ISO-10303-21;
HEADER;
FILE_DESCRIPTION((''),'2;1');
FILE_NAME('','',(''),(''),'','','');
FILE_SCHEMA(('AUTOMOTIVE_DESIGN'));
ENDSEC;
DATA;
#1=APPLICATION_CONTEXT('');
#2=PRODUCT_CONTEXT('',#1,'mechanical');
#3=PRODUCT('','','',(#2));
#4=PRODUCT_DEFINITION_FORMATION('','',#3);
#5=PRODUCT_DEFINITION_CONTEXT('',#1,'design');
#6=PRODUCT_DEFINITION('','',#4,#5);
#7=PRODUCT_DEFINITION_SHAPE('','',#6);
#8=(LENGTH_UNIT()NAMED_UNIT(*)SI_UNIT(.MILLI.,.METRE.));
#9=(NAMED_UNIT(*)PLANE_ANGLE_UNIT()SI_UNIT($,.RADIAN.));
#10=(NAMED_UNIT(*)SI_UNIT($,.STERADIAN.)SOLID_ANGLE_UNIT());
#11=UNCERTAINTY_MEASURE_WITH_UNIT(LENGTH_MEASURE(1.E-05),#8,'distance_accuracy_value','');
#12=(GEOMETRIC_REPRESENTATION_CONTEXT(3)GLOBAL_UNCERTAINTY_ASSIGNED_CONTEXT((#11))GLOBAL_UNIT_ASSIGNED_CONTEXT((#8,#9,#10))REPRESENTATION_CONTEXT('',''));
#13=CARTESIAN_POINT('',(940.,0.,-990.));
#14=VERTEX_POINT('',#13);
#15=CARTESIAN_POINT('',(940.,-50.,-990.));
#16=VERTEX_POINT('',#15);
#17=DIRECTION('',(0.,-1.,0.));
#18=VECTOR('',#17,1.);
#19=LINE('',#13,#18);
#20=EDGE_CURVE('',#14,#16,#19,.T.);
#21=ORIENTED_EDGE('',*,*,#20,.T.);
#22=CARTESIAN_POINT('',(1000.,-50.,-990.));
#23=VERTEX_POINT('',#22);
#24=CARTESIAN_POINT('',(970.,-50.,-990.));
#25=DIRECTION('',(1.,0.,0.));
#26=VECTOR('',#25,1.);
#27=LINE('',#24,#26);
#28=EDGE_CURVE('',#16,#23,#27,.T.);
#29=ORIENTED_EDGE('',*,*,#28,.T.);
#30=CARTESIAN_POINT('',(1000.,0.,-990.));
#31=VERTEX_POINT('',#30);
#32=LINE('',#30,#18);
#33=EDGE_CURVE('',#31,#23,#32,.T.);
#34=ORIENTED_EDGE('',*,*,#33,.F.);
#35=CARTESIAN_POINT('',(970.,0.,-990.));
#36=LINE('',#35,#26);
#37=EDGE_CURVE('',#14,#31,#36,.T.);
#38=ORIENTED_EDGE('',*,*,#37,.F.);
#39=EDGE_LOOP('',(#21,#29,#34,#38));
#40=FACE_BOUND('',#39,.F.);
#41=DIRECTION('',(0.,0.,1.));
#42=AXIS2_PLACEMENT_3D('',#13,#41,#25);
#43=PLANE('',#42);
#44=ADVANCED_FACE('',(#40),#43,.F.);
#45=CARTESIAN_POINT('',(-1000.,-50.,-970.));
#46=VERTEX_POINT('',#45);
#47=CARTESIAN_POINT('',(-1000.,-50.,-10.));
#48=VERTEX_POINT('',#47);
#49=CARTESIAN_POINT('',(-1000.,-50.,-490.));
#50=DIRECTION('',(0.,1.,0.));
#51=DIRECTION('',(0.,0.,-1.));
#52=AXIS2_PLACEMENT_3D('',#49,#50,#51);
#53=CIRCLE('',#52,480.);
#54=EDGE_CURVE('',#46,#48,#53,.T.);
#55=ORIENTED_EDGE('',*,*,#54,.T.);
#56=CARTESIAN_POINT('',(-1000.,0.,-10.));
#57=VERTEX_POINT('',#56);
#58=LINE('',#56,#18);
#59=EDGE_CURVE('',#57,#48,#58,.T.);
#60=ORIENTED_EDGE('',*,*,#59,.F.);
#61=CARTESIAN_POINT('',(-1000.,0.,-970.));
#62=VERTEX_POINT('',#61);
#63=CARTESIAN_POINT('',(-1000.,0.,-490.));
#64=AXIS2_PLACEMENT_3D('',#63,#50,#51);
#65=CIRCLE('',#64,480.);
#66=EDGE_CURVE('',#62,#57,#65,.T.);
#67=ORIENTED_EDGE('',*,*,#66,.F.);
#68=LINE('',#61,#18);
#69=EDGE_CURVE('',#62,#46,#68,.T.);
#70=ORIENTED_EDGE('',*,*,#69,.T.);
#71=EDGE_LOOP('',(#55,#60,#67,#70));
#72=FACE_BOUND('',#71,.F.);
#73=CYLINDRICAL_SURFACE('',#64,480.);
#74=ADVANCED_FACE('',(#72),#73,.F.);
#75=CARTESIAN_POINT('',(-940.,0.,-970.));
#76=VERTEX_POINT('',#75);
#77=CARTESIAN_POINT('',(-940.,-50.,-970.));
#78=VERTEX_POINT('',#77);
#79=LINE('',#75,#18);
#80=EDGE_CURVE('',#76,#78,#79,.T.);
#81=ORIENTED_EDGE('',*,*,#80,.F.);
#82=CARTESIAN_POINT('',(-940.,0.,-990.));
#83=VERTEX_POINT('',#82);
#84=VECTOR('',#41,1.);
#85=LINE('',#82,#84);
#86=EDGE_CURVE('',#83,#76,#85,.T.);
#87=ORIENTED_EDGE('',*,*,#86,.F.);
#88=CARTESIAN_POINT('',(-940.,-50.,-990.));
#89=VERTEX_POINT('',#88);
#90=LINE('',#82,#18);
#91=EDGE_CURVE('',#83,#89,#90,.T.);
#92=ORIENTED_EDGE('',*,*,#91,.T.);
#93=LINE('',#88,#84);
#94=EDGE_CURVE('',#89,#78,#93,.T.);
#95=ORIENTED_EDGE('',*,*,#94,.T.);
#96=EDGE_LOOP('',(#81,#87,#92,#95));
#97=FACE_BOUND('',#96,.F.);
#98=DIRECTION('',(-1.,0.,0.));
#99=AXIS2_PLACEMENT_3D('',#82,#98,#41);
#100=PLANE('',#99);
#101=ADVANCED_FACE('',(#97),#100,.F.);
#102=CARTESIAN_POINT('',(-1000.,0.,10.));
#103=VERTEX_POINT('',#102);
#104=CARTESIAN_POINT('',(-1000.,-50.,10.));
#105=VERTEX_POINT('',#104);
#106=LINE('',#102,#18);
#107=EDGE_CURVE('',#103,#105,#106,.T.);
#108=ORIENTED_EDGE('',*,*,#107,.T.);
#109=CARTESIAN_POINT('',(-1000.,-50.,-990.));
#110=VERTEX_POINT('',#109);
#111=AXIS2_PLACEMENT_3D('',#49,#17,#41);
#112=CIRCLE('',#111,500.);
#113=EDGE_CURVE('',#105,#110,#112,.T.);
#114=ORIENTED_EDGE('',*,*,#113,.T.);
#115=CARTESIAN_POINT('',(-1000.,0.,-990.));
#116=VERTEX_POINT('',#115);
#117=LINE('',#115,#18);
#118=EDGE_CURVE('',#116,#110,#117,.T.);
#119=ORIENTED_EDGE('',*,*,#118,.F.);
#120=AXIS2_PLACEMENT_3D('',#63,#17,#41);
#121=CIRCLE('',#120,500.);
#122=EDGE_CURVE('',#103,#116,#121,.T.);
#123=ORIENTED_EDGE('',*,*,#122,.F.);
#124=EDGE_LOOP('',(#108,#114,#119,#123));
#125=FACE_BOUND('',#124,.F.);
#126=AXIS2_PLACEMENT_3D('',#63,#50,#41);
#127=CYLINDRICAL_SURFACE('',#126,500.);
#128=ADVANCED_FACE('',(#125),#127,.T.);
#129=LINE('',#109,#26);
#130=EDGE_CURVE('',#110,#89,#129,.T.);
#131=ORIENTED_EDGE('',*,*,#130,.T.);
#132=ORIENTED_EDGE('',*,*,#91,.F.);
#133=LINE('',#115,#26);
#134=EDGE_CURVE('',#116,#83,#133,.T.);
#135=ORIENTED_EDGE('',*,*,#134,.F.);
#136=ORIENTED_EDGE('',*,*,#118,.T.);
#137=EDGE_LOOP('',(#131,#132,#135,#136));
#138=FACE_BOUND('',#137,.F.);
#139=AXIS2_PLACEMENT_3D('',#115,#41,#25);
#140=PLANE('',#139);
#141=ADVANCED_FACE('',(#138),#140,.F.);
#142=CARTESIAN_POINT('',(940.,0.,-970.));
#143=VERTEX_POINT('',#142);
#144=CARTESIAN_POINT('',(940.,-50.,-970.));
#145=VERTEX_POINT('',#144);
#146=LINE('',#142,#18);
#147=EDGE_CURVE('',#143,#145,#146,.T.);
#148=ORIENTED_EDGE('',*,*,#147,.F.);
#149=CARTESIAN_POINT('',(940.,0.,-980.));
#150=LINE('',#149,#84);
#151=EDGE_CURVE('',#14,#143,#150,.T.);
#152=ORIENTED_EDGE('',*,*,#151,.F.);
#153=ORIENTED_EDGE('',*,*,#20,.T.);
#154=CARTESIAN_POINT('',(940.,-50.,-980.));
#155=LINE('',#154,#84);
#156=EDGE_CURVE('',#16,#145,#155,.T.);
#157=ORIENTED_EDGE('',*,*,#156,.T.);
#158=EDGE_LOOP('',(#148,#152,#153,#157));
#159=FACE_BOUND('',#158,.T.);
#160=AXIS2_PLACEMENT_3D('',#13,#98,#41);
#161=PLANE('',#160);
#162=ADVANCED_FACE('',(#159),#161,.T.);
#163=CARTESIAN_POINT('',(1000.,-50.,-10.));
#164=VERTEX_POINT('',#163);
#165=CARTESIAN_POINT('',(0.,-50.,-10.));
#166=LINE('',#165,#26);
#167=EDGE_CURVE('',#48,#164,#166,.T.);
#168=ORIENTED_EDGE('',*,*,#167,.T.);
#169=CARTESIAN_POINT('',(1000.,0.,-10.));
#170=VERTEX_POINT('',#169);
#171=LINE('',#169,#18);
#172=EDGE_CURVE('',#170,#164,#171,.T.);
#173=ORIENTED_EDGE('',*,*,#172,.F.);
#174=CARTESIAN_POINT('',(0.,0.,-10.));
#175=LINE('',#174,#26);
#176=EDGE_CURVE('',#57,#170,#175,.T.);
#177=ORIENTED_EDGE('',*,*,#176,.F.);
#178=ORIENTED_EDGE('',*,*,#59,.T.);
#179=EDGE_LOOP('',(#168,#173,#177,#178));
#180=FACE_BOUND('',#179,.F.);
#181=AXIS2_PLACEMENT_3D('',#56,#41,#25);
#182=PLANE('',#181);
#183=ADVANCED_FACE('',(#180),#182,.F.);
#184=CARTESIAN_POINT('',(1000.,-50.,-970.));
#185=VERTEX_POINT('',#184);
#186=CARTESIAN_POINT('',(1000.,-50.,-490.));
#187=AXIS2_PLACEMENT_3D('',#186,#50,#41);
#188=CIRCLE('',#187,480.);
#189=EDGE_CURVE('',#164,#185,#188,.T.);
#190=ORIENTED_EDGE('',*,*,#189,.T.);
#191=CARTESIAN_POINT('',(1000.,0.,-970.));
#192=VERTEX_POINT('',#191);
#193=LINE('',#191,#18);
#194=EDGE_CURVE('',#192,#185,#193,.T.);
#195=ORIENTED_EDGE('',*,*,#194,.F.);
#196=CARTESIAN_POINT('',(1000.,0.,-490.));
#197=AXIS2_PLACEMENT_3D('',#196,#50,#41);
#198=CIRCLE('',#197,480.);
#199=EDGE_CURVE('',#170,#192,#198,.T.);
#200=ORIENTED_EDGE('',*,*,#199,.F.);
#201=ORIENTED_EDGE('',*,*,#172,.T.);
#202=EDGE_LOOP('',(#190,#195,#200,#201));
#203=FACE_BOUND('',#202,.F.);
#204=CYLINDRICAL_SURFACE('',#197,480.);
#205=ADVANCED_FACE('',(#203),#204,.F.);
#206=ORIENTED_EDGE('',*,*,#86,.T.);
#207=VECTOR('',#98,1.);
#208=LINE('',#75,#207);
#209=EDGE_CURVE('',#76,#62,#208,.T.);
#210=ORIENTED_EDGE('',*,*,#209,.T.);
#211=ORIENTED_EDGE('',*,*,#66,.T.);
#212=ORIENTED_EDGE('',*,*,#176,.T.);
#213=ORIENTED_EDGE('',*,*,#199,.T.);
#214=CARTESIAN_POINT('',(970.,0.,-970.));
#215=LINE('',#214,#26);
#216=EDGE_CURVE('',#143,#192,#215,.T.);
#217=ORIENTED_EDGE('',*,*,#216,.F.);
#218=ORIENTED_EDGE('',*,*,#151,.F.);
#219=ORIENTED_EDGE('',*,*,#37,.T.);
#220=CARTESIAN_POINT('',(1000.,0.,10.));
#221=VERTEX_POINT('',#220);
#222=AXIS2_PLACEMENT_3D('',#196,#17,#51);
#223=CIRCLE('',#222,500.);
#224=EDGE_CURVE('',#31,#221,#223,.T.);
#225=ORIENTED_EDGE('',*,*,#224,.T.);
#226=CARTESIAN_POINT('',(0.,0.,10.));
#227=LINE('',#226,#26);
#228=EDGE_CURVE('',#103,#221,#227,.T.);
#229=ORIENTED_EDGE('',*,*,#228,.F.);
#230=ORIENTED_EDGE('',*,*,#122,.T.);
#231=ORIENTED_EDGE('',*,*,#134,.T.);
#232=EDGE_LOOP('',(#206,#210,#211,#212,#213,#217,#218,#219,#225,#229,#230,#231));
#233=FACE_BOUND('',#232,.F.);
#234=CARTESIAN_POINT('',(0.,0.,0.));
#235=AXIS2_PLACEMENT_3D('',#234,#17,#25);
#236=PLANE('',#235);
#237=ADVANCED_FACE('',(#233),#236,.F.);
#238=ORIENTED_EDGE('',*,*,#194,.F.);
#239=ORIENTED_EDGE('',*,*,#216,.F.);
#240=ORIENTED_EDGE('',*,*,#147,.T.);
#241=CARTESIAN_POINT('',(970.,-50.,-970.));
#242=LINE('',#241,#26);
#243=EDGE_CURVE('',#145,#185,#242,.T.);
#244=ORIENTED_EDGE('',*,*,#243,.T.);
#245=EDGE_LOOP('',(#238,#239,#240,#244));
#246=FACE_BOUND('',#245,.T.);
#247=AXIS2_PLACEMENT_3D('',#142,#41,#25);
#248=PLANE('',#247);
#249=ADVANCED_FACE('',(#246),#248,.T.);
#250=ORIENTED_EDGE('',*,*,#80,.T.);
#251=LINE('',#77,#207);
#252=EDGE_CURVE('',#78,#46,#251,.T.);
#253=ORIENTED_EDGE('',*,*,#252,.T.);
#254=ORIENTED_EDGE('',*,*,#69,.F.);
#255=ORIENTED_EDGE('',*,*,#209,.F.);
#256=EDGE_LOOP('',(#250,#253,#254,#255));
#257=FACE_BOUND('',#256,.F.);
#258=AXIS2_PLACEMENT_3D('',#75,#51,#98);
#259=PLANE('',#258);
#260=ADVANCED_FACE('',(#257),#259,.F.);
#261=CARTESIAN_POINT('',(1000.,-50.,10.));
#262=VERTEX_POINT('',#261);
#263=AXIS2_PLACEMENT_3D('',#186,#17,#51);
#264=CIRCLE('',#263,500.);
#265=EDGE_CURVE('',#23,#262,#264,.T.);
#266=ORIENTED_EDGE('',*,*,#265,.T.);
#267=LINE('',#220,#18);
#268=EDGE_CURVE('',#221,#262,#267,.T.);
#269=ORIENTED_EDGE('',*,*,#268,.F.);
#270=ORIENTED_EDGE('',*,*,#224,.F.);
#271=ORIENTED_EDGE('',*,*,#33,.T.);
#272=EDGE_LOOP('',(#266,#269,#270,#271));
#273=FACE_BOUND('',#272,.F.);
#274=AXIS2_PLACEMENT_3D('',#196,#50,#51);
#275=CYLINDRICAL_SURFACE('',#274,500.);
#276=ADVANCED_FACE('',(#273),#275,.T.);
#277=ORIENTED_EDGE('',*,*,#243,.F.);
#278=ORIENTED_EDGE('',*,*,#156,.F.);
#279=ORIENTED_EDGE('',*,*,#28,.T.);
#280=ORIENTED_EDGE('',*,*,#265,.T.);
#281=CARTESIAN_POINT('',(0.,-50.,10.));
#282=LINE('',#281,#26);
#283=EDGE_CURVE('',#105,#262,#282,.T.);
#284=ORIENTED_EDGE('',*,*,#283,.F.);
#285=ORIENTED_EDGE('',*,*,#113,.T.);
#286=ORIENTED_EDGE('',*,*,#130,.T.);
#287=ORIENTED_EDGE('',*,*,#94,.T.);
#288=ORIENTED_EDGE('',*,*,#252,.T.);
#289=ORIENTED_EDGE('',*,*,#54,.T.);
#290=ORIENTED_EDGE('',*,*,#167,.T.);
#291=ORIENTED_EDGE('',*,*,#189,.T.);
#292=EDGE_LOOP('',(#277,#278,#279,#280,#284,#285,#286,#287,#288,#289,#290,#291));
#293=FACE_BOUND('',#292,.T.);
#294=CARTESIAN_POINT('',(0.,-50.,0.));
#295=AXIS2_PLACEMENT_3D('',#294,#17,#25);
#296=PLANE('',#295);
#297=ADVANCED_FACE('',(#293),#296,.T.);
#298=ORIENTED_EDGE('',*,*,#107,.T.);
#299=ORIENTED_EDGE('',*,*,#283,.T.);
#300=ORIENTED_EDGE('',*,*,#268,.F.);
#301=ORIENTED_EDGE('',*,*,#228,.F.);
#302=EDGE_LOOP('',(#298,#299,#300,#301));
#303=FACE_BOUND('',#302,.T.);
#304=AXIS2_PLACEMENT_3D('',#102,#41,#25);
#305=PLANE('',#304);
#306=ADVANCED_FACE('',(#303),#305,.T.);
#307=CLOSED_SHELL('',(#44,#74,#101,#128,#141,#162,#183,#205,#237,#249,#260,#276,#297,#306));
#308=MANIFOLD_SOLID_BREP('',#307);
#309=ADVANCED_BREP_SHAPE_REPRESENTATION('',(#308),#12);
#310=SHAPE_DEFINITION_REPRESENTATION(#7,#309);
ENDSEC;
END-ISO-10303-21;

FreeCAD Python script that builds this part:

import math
import FreeCAD as App
import Part
import Sketcher

V = App.Vector
Q = App.Units.Quantity

doc = App.newDocument("Part")
body = doc.addObject("PartDesign::Body", "Body")

sketch1 = doc.addObject("Sketcher::SketchObject", "Sketch")
body.addObject(sketch1)
sketch1.AttachmentSupport = (doc.XZ_Plane, [""])
sketch1.MapMode = "FlatFace"
sketch1.addGeometry([
    Part.LineSegment(V(-1000, -10, 0), V(1000, -10, 0)),
    Part.ArcOfCircle(Part.Circle(V(1000, -490, 0), V(0, 0, 1), 480), math.radians(-90), math.radians(90)),
    Part.LineSegment(V(1000, -970, 0), V(940, -970, 0)),
    Part.LineSegment(V(940, -970, 0), V(940, -990, 0)),
    Part.LineSegment(V(940, -990, 0), V(1000, -990, 0)),
    Part.ArcOfCircle(Part.Circle(V(1000, -490, 0), V(0, 0, 1), 500), math.radians(-90), math.radians(90)),
    Part.LineSegment(V(1000, 10, 0), V(-1000, 10, 0)),
    Part.ArcOfCircle(Part.Circle(V(-1000, -490, 0), V(0, 0, 1), 500), math.radians(90), math.radians(270)),
    Part.LineSegment(V(-1000, -990, 0), V(-940, -990, 0)),
    Part.LineSegment(V(-940, -990, 0), V(-940, -970, 0)),
    Part.LineSegment(V(-940, -970, 0), V(-1000, -970, 0)),
    Part.ArcOfCircle(Part.Circle(V(-1000, -490, 0), V(0, 0, 1), 480), math.radians(90), math.radians(270)),
], False)
sketch1.addConstraint([
    Sketcher.Constraint("Tangent", 0, 2, 1, 2),
    Sketcher.Constraint("Tangent", 1, 1, 2, 1),
    Sketcher.Constraint("Coincident", 2, 2, 3, 1),
    Sketcher.Constraint("Coincident", 3, 2, 4, 1),
    Sketcher.Constraint("Tangent", 4, 2, 5, 1),
    Sketcher.Constraint("Tangent", 5, 2, 6, 1),
    Sketcher.Constraint("Tangent", 6, 2, 7, 1),
    Sketcher.Constraint("Tangent", 7, 2, 8, 1),
    Sketcher.Constraint("Coincident", 8, 2, 9, 1),
    Sketcher.Constraint("Coincident", 9, 2, 10, 1),
    Sketcher.Constraint("Tangent", 10, 2, 11, 2),
    Sketcher.Constraint("Tangent", 11, 1, 0, 1),
    Sketcher.Constraint("Horizontal", 0),
    Sketcher.Constraint("Horizontal", 2),
    Sketcher.Constraint("Vertical", 3),
    Sketcher.Constraint("Horizontal", 4),
    Sketcher.Constraint("Horizontal", 6),
    Sketcher.Constraint("Horizontal", 8),
    Sketcher.Constraint("Vertical", 9),
    Sketcher.Constraint("Horizontal", 10),
    Sketcher.Constraint("Coincident", 5, 3, 1, 3),
    Sketcher.Constraint("Coincident", 11, 3, 7, 3),
    Sketcher.Constraint("Equal", 5, 7),
    Sketcher.Constraint("Symmetric", 0, 2, 6, 2, -1, 1),
    Sketcher.Constraint("Equal", 4, 8),
    Sketcher.Constraint("Radius", 1, Q("480 mm")),
    Sketcher.Constraint("Radius", 5, Q("500 mm")),
    Sketcher.Constraint("DistanceX", 0, 1, 0, 2, Q("2000 mm")),
    Sketcher.Constraint("DistanceX", 2, 2, 2, 1, Q("60 mm")),
])
pad1 = doc.addObject("PartDesign::Pad", "Pad")
body.addObject(pad1)
pad1.Profile = sketch1
pad1.Length = 50

doc.recompute()
